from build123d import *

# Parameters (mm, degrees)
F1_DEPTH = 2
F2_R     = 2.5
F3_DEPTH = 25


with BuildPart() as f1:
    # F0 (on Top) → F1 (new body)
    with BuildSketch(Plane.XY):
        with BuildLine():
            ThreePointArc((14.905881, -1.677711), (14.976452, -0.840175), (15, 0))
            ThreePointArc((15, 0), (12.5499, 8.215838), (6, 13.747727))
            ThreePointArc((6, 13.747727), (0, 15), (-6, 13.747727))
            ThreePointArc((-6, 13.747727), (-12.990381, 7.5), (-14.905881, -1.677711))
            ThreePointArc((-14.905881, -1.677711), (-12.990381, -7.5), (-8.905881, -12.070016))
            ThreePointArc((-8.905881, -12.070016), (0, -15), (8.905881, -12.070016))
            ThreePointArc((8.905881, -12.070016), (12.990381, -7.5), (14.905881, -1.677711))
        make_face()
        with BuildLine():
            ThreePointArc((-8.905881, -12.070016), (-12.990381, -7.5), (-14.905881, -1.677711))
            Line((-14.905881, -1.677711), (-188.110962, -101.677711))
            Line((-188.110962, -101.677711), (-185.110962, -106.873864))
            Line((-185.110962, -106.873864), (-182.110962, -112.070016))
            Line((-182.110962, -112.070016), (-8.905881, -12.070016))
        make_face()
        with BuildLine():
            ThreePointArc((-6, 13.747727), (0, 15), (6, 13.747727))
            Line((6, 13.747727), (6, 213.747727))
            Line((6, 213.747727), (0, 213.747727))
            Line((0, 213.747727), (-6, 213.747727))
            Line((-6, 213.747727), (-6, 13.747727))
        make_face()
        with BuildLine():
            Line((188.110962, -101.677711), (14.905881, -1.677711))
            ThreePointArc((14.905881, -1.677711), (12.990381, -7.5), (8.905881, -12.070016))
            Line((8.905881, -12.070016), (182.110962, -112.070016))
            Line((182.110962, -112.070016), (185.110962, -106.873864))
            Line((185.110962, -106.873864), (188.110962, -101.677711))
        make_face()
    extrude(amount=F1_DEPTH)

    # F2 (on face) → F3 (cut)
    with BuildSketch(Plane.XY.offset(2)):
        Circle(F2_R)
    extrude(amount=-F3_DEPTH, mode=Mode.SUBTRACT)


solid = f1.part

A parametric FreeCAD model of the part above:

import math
import FreeCAD as App
import Part
import Sketcher
Q = App.Units.Quantity

doc = App.newDocument("Part")
params = doc.addObject("Spreadsheet::Sheet", "Params")
for row, (alias, value) in enumerate([
    ("sketch1_radius", "15 mm"),
    ("sketch1_radius2", "15 mm"),
    ("sketch1_width", "12 mm"),
    ("sketch1_height", "200 mm"),
    ("sketch1_height2", "200 mm"),
    ("pad1_length", "2 mm"),
    ("sketch2_diameter", "5 mm"),
    ("pocket1_length", "25 mm"),
], start=1):
    params.set(f"A{row}", alias)
    params.set(f"B{row}", "=" + value)
    params.setAlias(f"B{row}", alias)

body = doc.addObject("PartDesign::Body", "Body")

sketch1 = doc.addObject("Sketcher::SketchObject", "Sketch")
body.addObject(sketch1)
sketch1.AttachmentSupport = (doc.XY_Plane, [""])
sketch1.MapMode = "FlatFace"
sketch1.addGeometry([
    Part.ArcOfCircle(Part.Circle(App.Vector(0.000154, -0.000009, 0), App.Vector(0, 0, 1), 14.999846), math.radians(-6.421851), math.radians(0.000036)),
    Part.ArcOfCircle(Part.Circle(App.Vector(-0.000002, -0.000002, 0), App.Vector(0, 0, 1), 15.000002), math.radians(0.000007), math.radians(66.421815)),
    Part.LineSegment(App.Vector(6, 13.747727, 0), App.Vector(6, 213.747727, 0)),
    Part.LineSegment(App.Vector(6, 213.747727, 0), App.Vector(-6, 213.747727, 0)),
    Part.LineSegment(App.Vector(-6, 213.747727, 0), App.Vector(-6, 13.747727, 0)),
    Part.ArcOfCircle(Part.Circle(App.Vector(0, 0, 0), App.Vector(0, 0, 1), 15), math.radians(113.578179), math.radians(186.42182)),
    Part.LineSegment(App.Vector(-14.905881, -1.677711, 0), App.Vector(-188.110962, -101.677711, 0)),
    Part.LineSegment(App.Vector(-188.110962, -101.677711, 0), App.Vector(-185.110962, -106.873864, 0)),
    Part.LineSegment(App.Vector(-185.110962, -106.873864, 0), App.Vector(-182.110962, -112.070016, 0)),
    Part.LineSegment(App.Vector(-182.110962, -112.070016, 0), App.Vector(-8.905881, -12.070016, 0)),
    Part.ArcOfCircle(Part.Circle(App.Vector(0, 0, 0), App.Vector(0, 0, 1), 15), math.radians(-126.421821), math.radians(-53.578179)),
    Part.LineSegment(App.Vector(8.905881, -12.070016, 0), App.Vector(182.110962, -112.070016, 0)),
    Part.LineSegment(App.Vector(182.110962, -112.070016, 0), App.Vector(185.110962, -106.873864, 0)),
    Part.LineSegment(App.Vector(185.110962, -106.873864, 0), App.Vector(188.110962, -101.677711, 0)),
    Part.LineSegment(App.Vector(188.110962, -101.677711, 0), App.Vector(14.905881, -1.677711, 0)),
], False)
sketch1.addConstraint([
    Sketcher.Constraint("Coincident", 0, 2, 1, 1),
    Sketcher.Constraint("Coincident", 1, 2, 2, 1),
    Sketcher.Constraint("Coincident", 2, 2, 3, 1),
    Sketcher.Constraint("Coincident", 3, 2, 4, 1),
    Sketcher.Constraint("Coincident", 4, 2, 5, 1),
    Sketcher.Constraint("Coincident", 5, 2, 6, 1),
    Sketcher.Constraint("Coincident", 6, 2, 7, 1),
    Sketcher.Constraint("Coincident", 7, 2, 8, 1),
    Sketcher.Constraint("Coincident", 8, 2, 9, 1),
    Sketcher.Constraint("Coincident", 9, 2, 10, 1),
    Sketcher.Constraint("Coincident", 10, 2, 11, 1),
    Sketcher.Constraint("Coincident", 11, 2, 12, 1),
    Sketcher.Constraint("Coincident", 12, 2, 13, 1),
    Sketcher.Constraint("Coincident", 13, 2, 14, 1),
    Sketcher.Constraint("Coincident", 14, 2, 0, 1),
    Sketcher.Constraint("Vertical", 2),
    Sketcher.Constraint("Horizontal", 3),
    Sketcher.Constraint("Vertical", 4),
    Sketcher.Constraint("Coincident", 1, 3, -1, 1),
    Sketcher.Constraint("Coincident", 5, 3, -1, 1),
    Sketcher.Constraint("Coincident", 10, 3, -1, 1),
    Sketcher.Constraint("PointOnObject", 0, 2, -1),
    Sketcher.Constraint("Radius", 5, Q("15 mm")),
    Sketcher.Constraint("Radius", 10, Q("15 mm")),
    Sketcher.Constraint("DistanceX", 3, 2, 3, 1, Q("12 mm")),
    Sketcher.Constraint("DistanceY", 2, 1, 2, 2, Q("200 mm")),
    Sketcher.Constraint("DistanceY", 4, 2, 4, 1, Q("200 mm")),
    Sketcher.Constraint("Distance", 6, Q("200 mm")),
    Sketcher.Constraint("Distance", 7, Q("6 mm")),
    Sketcher.Constraint("Distance", 8, Q("6 mm")),
    Sketcher.Constraint("Distance", 9, Q("200 mm")),
    Sketcher.Constraint("Distance", 11, Q("200 mm")),
    Sketcher.Constraint("Distance", 12, Q("6 mm")),
    Sketcher.Constraint("Distance", 13, Q("6 mm")),
    Sketcher.Constraint("Distance", 14, Q("200 mm")),
    Sketcher.Constraint("DistanceX", -1, 1, 0, 2, Q("15 mm")),
    Sketcher.Constraint("DistanceY", 6, 2, 5, 2, Q("100 mm")),
    Sketcher.Constraint("DistanceX", 6, 2, 7, 2, Q("3 mm")),
    Sketcher.Constraint("DistanceX", 7, 2, 8, 2, Q("3 mm")),
    Sketcher.Constraint("DistanceX", 5, 2, 9, 2, Q("6 mm")),
    Sketcher.Constraint("DistanceY", 11, 2, 10, 2, Q("100 mm")),
    Sketcher.Constraint("DistanceX", 11, 2, 12, 2, Q("3 mm")),
    Sketcher.Constraint("DistanceX", 12, 2, 13, 2, Q("3 mm")),
    Sketcher.Constraint("DistanceX", 10, 2, 14, 2, Q("6 mm")),
    Sketcher.Constraint("Radius", 0, Q("14.999846 mm")),
    Sketcher.Constraint("DistanceY", 5, 2, 0, 3, Q("1.677702 mm")),
])
sketch1.setExpression("Constraints[22]", "Params.sketch1_radius")
sketch1.setExpression("Constraints[23]", "Params.sketch1_radius2")
sketch1.setExpression("Constraints[24]", "Params.sketch1_width")
sketch1.setExpression("Constraints[25]", "Params.sketch1_height")
sketch1.setExpression("Constraints[26]", "Params.sketch1_height2")
pad1 = doc.addObject("PartDesign::Pad", "Pad")
body.addObject(pad1)
pad1.Profile = sketch1
pad1.setExpression("Length", "Params.pad1_length")

sketch2 = doc.addObject("Sketcher::SketchObject", "Sketch001")
body.addObject(sketch2)
sketch2.AttachmentSupport = (doc.XY_Plane, [""])
sketch2.MapMode = "FlatFace"
sketch2.AttachmentOffset = App.Placement(App.Vector(0, 0, 2), App.Rotation())
sketch2.addGeometry(Part.Circle(App.Vector(0, 0, 0), App.Vector(0, 0, 1), 2.5), False)
sketch2.addConstraint([
    Sketcher.Constraint("Coincident", 0, 3, -1, 1),
    Sketcher.Constraint("Diameter", 0, Q("5 mm")),
])
sketch2.setExpression("Constraints[1]", "Params.sketch2_diameter")
pocket1 = doc.addObject("PartDesign::Pocket", "Pocket")
body.addObject(pocket1)
pocket1.Profile = sketch2
pocket1.setExpression("Length", "Params.pocket1_length")

doc.recompute()
